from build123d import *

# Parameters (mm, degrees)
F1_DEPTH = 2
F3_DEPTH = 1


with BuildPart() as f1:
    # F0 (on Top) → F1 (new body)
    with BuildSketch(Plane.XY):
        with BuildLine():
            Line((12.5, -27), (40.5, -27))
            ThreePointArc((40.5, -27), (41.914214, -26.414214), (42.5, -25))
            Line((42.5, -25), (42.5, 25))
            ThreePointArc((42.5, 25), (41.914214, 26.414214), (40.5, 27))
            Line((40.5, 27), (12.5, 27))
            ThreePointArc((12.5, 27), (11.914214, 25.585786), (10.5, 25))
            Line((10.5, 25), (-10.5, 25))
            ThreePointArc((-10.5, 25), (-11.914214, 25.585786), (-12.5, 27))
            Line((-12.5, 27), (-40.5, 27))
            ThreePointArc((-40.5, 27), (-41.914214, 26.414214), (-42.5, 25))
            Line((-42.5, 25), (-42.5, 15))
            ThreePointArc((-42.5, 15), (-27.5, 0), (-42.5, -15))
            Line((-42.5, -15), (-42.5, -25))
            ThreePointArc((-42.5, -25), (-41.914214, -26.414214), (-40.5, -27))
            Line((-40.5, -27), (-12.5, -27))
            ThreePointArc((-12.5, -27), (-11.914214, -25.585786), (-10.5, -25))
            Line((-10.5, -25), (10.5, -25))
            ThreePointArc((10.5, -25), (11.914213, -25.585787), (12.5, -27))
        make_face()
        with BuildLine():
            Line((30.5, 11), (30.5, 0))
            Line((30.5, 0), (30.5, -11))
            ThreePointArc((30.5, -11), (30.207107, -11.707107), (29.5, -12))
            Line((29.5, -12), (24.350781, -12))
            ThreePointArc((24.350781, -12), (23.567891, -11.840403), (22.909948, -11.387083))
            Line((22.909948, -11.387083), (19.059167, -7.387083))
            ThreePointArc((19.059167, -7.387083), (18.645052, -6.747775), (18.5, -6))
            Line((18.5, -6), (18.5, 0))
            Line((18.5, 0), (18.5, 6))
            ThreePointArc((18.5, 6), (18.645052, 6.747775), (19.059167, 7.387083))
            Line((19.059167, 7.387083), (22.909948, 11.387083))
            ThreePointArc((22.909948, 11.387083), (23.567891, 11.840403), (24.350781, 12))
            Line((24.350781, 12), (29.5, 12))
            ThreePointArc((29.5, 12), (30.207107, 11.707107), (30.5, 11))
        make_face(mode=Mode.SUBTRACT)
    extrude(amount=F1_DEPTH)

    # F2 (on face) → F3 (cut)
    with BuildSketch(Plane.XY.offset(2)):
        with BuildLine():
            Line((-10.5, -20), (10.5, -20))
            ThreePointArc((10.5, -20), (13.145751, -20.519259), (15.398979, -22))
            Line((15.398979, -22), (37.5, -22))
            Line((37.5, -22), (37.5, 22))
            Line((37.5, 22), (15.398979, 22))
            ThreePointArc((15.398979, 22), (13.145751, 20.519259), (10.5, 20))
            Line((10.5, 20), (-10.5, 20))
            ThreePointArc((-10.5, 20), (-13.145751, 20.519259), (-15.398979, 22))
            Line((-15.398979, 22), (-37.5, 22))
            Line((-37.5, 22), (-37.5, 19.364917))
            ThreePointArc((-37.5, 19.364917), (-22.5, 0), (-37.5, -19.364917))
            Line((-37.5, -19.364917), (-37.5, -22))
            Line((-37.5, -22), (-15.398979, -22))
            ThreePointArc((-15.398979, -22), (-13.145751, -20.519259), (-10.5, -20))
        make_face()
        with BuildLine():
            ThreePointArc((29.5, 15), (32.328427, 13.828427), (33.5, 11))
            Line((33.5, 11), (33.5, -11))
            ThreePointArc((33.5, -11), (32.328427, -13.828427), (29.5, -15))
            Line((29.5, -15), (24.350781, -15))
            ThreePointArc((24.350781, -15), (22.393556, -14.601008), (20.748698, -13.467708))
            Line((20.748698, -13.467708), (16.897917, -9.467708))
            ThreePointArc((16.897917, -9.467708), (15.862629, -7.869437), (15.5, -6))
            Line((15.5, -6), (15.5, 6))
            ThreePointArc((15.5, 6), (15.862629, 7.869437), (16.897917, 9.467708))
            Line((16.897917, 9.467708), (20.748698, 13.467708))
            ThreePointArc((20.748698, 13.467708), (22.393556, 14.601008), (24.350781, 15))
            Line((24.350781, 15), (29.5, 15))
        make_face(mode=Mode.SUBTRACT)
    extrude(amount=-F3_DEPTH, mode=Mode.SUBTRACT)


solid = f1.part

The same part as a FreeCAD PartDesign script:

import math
import FreeCAD as App
import Part
import Sketcher
Q = App.Units.Quantity

doc = App.newDocument("Part")
body = doc.addObject("PartDesign::Body", "Body")

# Sketch on XY plane
sketch1 = body.newObject("Sketcher::SketchObject", "Sketch")
sketch1.AttachmentSupport = (doc.getObject("XY_Plane"), [""])
sketch1.MapMode = "FlatFace"
sketch1.addGeometry([
    Part.LineSegment(App.Vector(12.5, -27, 0), App.Vector(40.5, -27, 0)),  # 0
    Part.ArcOfCircle(Part.Circle(App.Vector(40.5, -25, 0), App.Vector(0, 0, 1), 2), math.radians(-90), math.radians(0)),  # 1
    Part.LineSegment(App.Vector(42.5, -25, 0), App.Vector(42.5, 25, 0)),  # 2
    Part.ArcOfCircle(Part.Circle(App.Vector(40.5, 25, 0), App.Vector(0, 0, 1), 2), math.radians(0), math.radians(90)),  # 3
    Part.LineSegment(App.Vector(40.5, 27, 0), App.Vector(12.5, 27, 0)),  # 4
    Part.ArcOfCircle(Part.Circle(App.Vector(10.5, 27, 0), App.Vector(0, 0, 1), 2), math.radians(-90), math.radians(0)),  # 5
    Part.LineSegment(App.Vector(10.5, 25, 0), App.Vector(-10.5, 25, 0)),  # 6
    Part.ArcOfCircle(Part.Circle(App.Vector(-10.5, 27, 0), App.Vector(0, 0, 1), 2), math.radians(180), math.radians(270)),  # 7
    Part.LineSegment(App.Vector(-12.5, 27, 0), App.Vector(-40.5, 27, 0)),  # 8
    Part.ArcOfCircle(Part.Circle(App.Vector(-40.5, 25, 0), App.Vector(0, 0, 1), 2), math.radians(90), math.radians(180)),  # 9
    Part.LineSegment(App.Vector(-42.5, 25, 0), App.Vector(-42.5, 15, 0)),  # 10
    Part.ArcOfCircle(Part.Circle(App.Vector(-42.5, 0, 0), App.Vector(0, 0, 1), 15), math.radians(-90), math.radians(90)),  # 11
    Part.LineSegment(App.Vector(-42.5, -15, 0), App.Vector(-42.5, -25, 0)),  # 12
    Part.ArcOfCircle(Part.Circle(App.Vector(-40.5, -25, 0), App.Vector(0, 0, 1), 2), math.radians(180), math.radians(270)),  # 13
    Part.LineSegment(App.Vector(-40.5, -27, 0), App.Vector(-12.5, -27, 0)),  # 14
    Part.ArcOfCircle(Part.Circle(App.Vector(-10.5, -27, 0), App.Vector(0, 0, 1), 2), math.radians(90), math.radians(180)),  # 15
    Part.LineSegment(App.Vector(-10.5, -25, 0), App.Vector(10.5, -25, 0)),  # 16
    Part.ArcOfCircle(Part.Circle(App.Vector(10.5, -27, 0), App.Vector(0, 0, 1), 2), math.radians(0), math.radians(90)),  # 17
    Part.ArcOfCircle(Part.Circle(App.Vector(29.5, 11, 0), App.Vector(0, 0, 1), 1), math.radians(0), math.radians(90)),  # 18
    Part.LineSegment(App.Vector(30.5, 11, 0), App.Vector(30.5, -11, 0)),  # 19
    Part.ArcOfCircle(Part.Circle(App.Vector(29.5, -11, 0), App.Vector(0, 0, 1), 1), math.radians(-90), math.radians(0)),  # 20
    Part.LineSegment(App.Vector(29.5, -12, 0), App.Vector(24.4, -12, 0)),  # 21
    Part.ArcOfCircle(Part.Circle(App.Vector(24.4, -10, 0), App.Vector(0, 0, 1), 2), math.radians(-136), math.radians(-90)),  # 22
    Part.LineSegment(App.Vector(22.9, -11.4, 0), App.Vector(19.1, -7.4, 0)),  # 23
    Part.ArcOfCircle(Part.Circle(App.Vector(20.5, -6, 0), App.Vector(0, 0, 1), 2), math.radians(-180), math.radians(-136)),  # 24
    Part.LineSegment(App.Vector(18.5, -6, 0), App.Vector(18.5, 6, 0)),  # 25
    Part.ArcOfCircle(Part.Circle(App.Vector(20.5, 6, 0), App.Vector(0, 0, 1), 2), math.radians(136), math.radians(180)),  # 26
    Part.LineSegment(App.Vector(19.1, 7.4, 0), App.Vector(22.9, 11.4, 0)),  # 27
    Part.ArcOfCircle(Part.Circle(App.Vector(24.4, 10, 0), App.Vector(0, 0, 1), 2), math.radians(90), math.radians(136)),  # 28
    Part.LineSegment(App.Vector(24.4, 12, 0), App.Vector(29.5, 12, 0)),  # 29
], False)
sketch1.addConstraint([
    Sketcher.Constraint("Tangent", 0, 2, 1, 1),
    Sketcher.Constraint("Tangent", 1, 2, 2, 1),
    Sketcher.Constraint("Tangent", 2, 2, 3, 1),
    Sketcher.Constraint("Tangent", 3, 2, 4, 1),
    Sketcher.Constraint("Coincident", 4, 2, 5, 2),
    Sketcher.Constraint("Tangent", 5, 1, 6, 1),
    Sketcher.Constraint("Tangent", 6, 2, 7, 2),
    Sketcher.Constraint("Coincident", 7, 1, 8, 1),
    Sketcher.Constraint("Tangent", 8, 2, 9, 1),
    Sketcher.Constraint("Tangent", 9, 2, 10, 1),
    Sketcher.Constraint("Coincident", 10, 2, 11, 2),
    Sketcher.Constraint("Coincident", 11, 1, 12, 1),
    Sketcher.Constraint("Tangent", 12, 2, 13, 1),
    Sketcher.Constraint("Tangent", 13, 2, 14, 1),
    Sketcher.Constraint("Coincident", 14, 2, 15, 2),
    Sketcher.Constraint("Tangent", 15, 1, 16, 1),
    Sketcher.Constraint("Tangent", 16, 2, 17, 2),
    Sketcher.Constraint("Coincident", 17, 1, 0, 1),
    Sketcher.Constraint("Tangent", 18, 1, 19, 1),
    Sketcher.Constraint("Tangent", 19, 2, 20, 2),
    Sketcher.Constraint("Tangent", 20, 1, 21, 1),
    Sketcher.Constraint("Tangent", 21, 2, 22, 2),
    Sketcher.Constraint("Tangent", 22, 1, 23, 1),
    Sketcher.Constraint("Tangent", 23, 2, 24, 2),
    Sketcher.Constraint("Tangent", 24, 1, 25, 1),
    Sketcher.Constraint("Tangent", 25, 2, 26, 2),
    Sketcher.Constraint("Tangent", 26, 1, 27, 1),
    Sketcher.Constraint("Tangent", 27, 2, 28, 2),
    Sketcher.Constraint("Tangent", 28, 1, 29, 1),
    Sketcher.Constraint("Tangent", 29, 2, 18, 2),
    Sketcher.Constraint("Horizontal", 0),
    Sketcher.Constraint("Vertical", 2),
    Sketcher.Constraint("Horizontal", 4),
    Sketcher.Constraint("Horizontal", 6),
    Sketcher.Constraint("Horizontal", 8),
    Sketcher.Constraint("Vertical", 10),
    Sketcher.Constraint("Vertical", 12),
    Sketcher.Constraint("Horizontal", 14),
    Sketcher.Constraint("Horizontal", 16),
    Sketcher.Constraint("Vertical", 19),
    Sketcher.Constraint("Horizontal", 21),
    Sketcher.Constraint("Vertical", 25),
    Sketcher.Constraint("Horizontal", 29),
    Sketcher.Constraint("Equal", 1, 3),
    Sketcher.Constraint("Equal", 3, 5),
    Sketcher.Constraint("Equal", 5, 7),
    Sketcher.Constraint("Equal", 7, 9),
    Sketcher.Constraint("Equal", 9, 13),
    Sketcher.Constraint("Equal", 13, 15),
    Sketcher.Constraint("Equal", 18, 20),
    Sketcher.Constraint("Equal", 15, 22),
    Sketcher.Constraint("Equal", 22, 24),
    Sketcher.Constraint("Equal", 24, 26),
    Sketcher.Constraint("Equal", 26, 28),
    Sketcher.Constraint("Symmetric", 1, 3, 9, 3, -1, 1),
    Sketcher.Constraint("Symmetric", 3, 3, 13, 3, -1, 1),
    Sketcher.Constraint("Symmetric", 5, 3, 15, 3, -1, 1),
    Sketcher.Constraint("Symmetric", 7, 3, 17, 3, -1, 1),
    Sketcher.Constraint("Symmetric", 4, 2, 7, 1, -2),
    Sketcher.Constraint("Symmetric", 22, 3, 28, 3, -1),
    Sketcher.Constraint("PointOnObject", 11, 3, -1),
    Sketcher.Constraint("Horizontal", 17, 3, 0, 2),
    Sketcher.Constraint("Vertical", 11, 3, 9, 2),
    Sketcher.Constraint("Vertical", 23, 2, 26, 1),
    Sketcher.Constraint("Radius", 1, Q("1.999999 mm")),
    Sketcher.Constraint("Radius", 11, Q("15 mm")),
    Sketcher.Constraint("Radius", 18, Q("0.999999 mm")),
    Sketcher.Constraint("DistanceX", 0, 1, 0, 2, Q("28 mm")),
    Sketcher.Constraint("DistanceX", 6, 2, 6, 1, Q("21 mm")),
    Sketcher.Constraint("DistanceY", 2, 1, 2, 2, Q("50 mm")),
    Sketcher.Constraint("DistanceY", 19, 2, 19, 1, Q("22 mm")),
    Sketcher.Constraint("DistanceY", 25, 1, 25, 2, Q("12 mm")),
    Sketcher.Constraint("DistanceX", 18, 3, 3, 3, Q("11.000001 mm")),
    Sketcher.Constraint("DistanceX", 24, 3, 20, 3, Q("9.000001 mm")),
    Sketcher.Constraint("DistanceX", 21, 2, 21, 1, Q("5.149219 mm")),
])
pad1 = body.newObject("PartDesign::Pad", "Pad")
pad1.Profile = sketch1
pad1.Length = 2

# Sketch on XY plane
sketch2 = body.newObject("Sketcher::SketchObject", "Sketch001")
sketch2.AttachmentSupport = (doc.getObject("XY_Plane"), [""])
sketch2.MapMode = "FlatFace"
sketch2.AttachmentOffset = App.Placement(App.Vector(0, 0, 2), App.Rotation())
sketch2.addGeometry([
    Part.LineSegment(App.Vector(-10.5, -20, 0), App.Vector(10.5, -20, 0)),  # 0
    Part.ArcOfCircle(Part.Circle(App.Vector(10.5, -27, 0), App.Vector(0, 0, 1), 7), math.radians(46), math.radians(90)),  # 1
    Part.LineSegment(App.Vector(15.4, -22, 0), App.Vector(37.5, -22, 0)),  # 2
    Part.LineSegment(App.Vector(37.5, -22, 0), App.Vector(37.5, 22, 0)),  # 3
    Part.LineSegment(App.Vector(37.5, 22, 0), App.Vector(15.4, 22, 0)),  # 4
    Part.ArcOfCircle(Part.Circle(App.Vector(10.5, 27, 0), App.Vector(0, 0, 1), 7), math.radians(-90), math.radians(-46)),  # 5
    Part.LineSegment(App.Vector(10.5, 20, 0), App.Vector(-10.5, 20, 0)),  # 6
    Part.ArcOfCircle(Part.Circle(App.Vector(-10.5, 27, 0), App.Vector(0, 0, 1), 7), math.radians(-134), math.radians(-90)),  # 7
    Part.LineSegment(App.Vector(-15.4, 22, 0), App.Vector(-37.5, 22, 0)),  # 8
    Part.LineSegment(App.Vector(-37.5, 22, 0), App.Vector(-37.5, 19.4, 0)),  # 9
    Part.ArcOfCircle(Part.Circle(App.Vector(-42.5, 0, 0), App.Vector(0, 0, 1), 20), math.radians(-76), math.radians(76)),  # 10
    Part.LineSegment(App.Vector(-37.5, -19.4, 0), App.Vector(-37.5, -22, 0)),  # 11
    Part.LineSegment(App.Vector(-37.5, -22, 0), App.Vector(-15.4, -22, 0)),  # 12
    Part.ArcOfCircle(Part.Circle(App.Vector(-10.5, -27, 0), App.Vector(0, 0, 1), 7), math.radians(90), math.radians(134)),  # 13
    Part.LineSegment(App.Vector(24.4, 15, 0), App.Vector(29.5, 15, 0)),  # 14
    Part.ArcOfCircle(Part.Circle(App.Vector(29.5, 11, 0), App.Vector(0, 0, 1), 4), math.radians(0), math.radians(90)),  # 15
    Part.LineSegment(App.Vector(33.5, 11, 0), App.Vector(33.5, -11, 0)),  # 16
    Part.ArcOfCircle(Part.Circle(App.Vector(29.5, -11, 0), App.Vector(0, 0, 1), 4), math.radians(-90), math.radians(0)),  # 17
    Part.LineSegment(App.Vector(29.5, -15, 0), App.Vector(24.4, -15, 0)),  # 18
    Part.ArcOfCircle(Part.Circle(App.Vector(24.4, -10, 0), App.Vector(0, 0, 1), 5), math.radians(-136), math.radians(-90)),  # 19
    Part.LineSegment(App.Vector(20.7, -13.5, 0), App.Vector(16.9, -9.5, 0)),  # 20
    Part.ArcOfCircle(Part.Circle(App.Vector(20.5, -6, 0), App.Vector(0, 0, 1), 5), math.radians(180), math.radians(224)),  # 21
    Part.LineSegment(App.Vector(15.5, -6, 0), App.Vector(15.5, 6, 0)),  # 22
    Part.ArcOfCircle(Part.Circle(App.Vector(20.5, 6, 0), App.Vector(0, 0, 1), 5), math.radians(136), math.radians(180)),  # 23
    Part.LineSegment(App.Vector(16.9, 9.5, 0), App.Vector(20.7, 13.5, 0)),  # 24
    Part.ArcOfCircle(Part.Circle(App.Vector(24.4, 10, 0), App.Vector(0, 0, 1), 5), math.radians(90), math.radians(136)),  # 25
], False)
sketch2.addConstraint([
    Sketcher.Constraint("Tangent", 0, 2, 1, 2),
    Sketcher.Constraint("Coincident", 1, 1, 2, 1),
    Sketcher.Constraint("Coincident", 2, 2, 3, 1),
    Sketcher.Constraint("Coincident", 3, 2, 4, 1),
    Sketcher.Constraint("Coincident", 4, 2, 5, 2),
    Sketcher.Constraint("Tangent", 5, 1, 6, 1),
    Sketcher.Constraint("Tangent", 6, 2, 7, 2),
    Sketcher.Constraint("Coincident", 7, 1, 8, 1),
    Sketcher.Constraint("Coincident", 8, 2, 9, 1),
    Sketcher.Constraint("Coincident", 9, 2, 10, 2),
    Sketcher.Constraint("Coincident", 10, 1, 11, 1),
    Sketcher.Constraint("Coincident", 11, 2, 12, 1),
    Sketcher.Constraint("Coincident", 12, 2, 13, 2),
    Sketcher.Constraint("Tangent", 13, 1, 0, 1),
    Sketcher.Constraint("Tangent", 14, 2, 15, 2),
    Sketcher.Constraint("Tangent", 15, 1, 16, 1),
    Sketcher.Constraint("Tangent", 16, 2, 17, 2),
    Sketcher.Constraint("Tangent", 17, 1, 18, 1),
    Sketcher.Constraint("Tangent", 18, 2, 19, 2),
    Sketcher.Constraint("Tangent", 19, 1, 20, 1),
    Sketcher.Constraint("Tangent", 20, 2, 21, 2),
    Sketcher.Constraint("Tangent", 21, 1, 22, 1),
    Sketcher.Constraint("Tangent", 22, 2, 23, 2),
    Sketcher.Constraint("Tangent", 23, 1, 24, 1),
    Sketcher.Constraint("Tangent", 24, 2, 25, 2),
    Sketcher.Constraint("Tangent", 25, 1, 14, 1),
    Sketcher.Constraint("Horizontal", 0),
    Sketcher.Constraint("Horizontal", 2),
    Sketcher.Constraint("Vertical", 3),
    Sketcher.Constraint("Horizontal", 4),
    Sketcher.Constraint("Horizontal", 6),
    Sketcher.Constraint("Horizontal", 8),
    Sketcher.Constraint("Vertical", 9),
    Sketcher.Constraint("Vertical", 11),
    Sketcher.Constraint("Horizontal", 12),
    Sketcher.Constraint("Horizontal", 14),
    Sketcher.Constraint("Vertical", 16),
    Sketcher.Constraint("Horizontal", 18),
    Sketcher.Constraint("Vertical", 22),
    Sketcher.Constraint("Equal", 1, 5),
    Sketcher.Constraint("Equal", 5, 7),
    Sketcher.Constraint("Equal", 7, 13),
    Sketcher.Constraint("Equal", 15, 17),
    Sketcher.Constraint("Equal", 19, 21),
    Sketcher.Constraint("Equal", 21, 23),
    Sketcher.Constraint("Equal", 23, 25),
    Sketcher.Constraint("Symmetric", 1, 3, 7, 3, -1, 1),
    Sketcher.Constraint("Symmetric", 2, 2, 8, 2, -1, 1),
    Sketcher.Constraint("Symmetric", 3, 2, 11, 2, -1, 1),
    Sketcher.Constraint("Symmetric", 4, 2, 7, 1, -2),
    Sketcher.Constraint("Symmetric", 19, 3, 25, 3, -1),
    Sketcher.Constraint("PointOnObject", 10, 3, -1),
    Sketcher.Constraint("Vertical", 7, 3, 13, 3),
    Sketcher.Constraint("Vertical", 20, 2, 23, 1),
    Sketcher.Constraint("Radius", 10, Q("20 mm")),
    Sketcher.Constraint("Radius", 15, Q("4 mm")),
    Sketcher.Constraint("DistanceX", 0, 1, 0, 2, Q("21 mm")),
    Sketcher.Constraint("DistanceY", 3, 1, 3, 2, Q("44 mm")),
    Sketcher.Constraint("DistanceY", 16, 2, 16, 1, Q("22 mm")),
    Sketcher.Constraint("DistanceY", 22, 1, 22, 2, Q("12 mm")),
    Sketcher.Constraint("DistanceY", 0, 2, -1, 1, Q("20 mm")),
    Sketcher.Constraint("DistanceX", 10, 3, 7, 3, Q("31.999999 mm")),
    Sketcher.Constraint("DistanceX", 5, 3, 15, 3, Q("18.999998 mm")),
    Sketcher.Constraint("DistanceY", 19, 3, 5, 3, Q("37 mm")),
    Sketcher.Constraint("DistanceX", 17, 3, 2, 2, Q("8 mm")),
    Sketcher.Constraint("DistanceY", 19, 1, 20, 2, Q("4 mm")),
    Sketcher.Constraint("DistanceX", 22, 2, 15, 3, Q("14 mm")),
    Sketcher.Constraint("DistanceX", 14, 1, 14, 2, Q("5.149219 mm")),
])
pocket1 = body.newObject("PartDesign::Pocket", "Pocket")
pocket1.Profile = sketch2
pocket1.Length = 1

doc.recompute()
